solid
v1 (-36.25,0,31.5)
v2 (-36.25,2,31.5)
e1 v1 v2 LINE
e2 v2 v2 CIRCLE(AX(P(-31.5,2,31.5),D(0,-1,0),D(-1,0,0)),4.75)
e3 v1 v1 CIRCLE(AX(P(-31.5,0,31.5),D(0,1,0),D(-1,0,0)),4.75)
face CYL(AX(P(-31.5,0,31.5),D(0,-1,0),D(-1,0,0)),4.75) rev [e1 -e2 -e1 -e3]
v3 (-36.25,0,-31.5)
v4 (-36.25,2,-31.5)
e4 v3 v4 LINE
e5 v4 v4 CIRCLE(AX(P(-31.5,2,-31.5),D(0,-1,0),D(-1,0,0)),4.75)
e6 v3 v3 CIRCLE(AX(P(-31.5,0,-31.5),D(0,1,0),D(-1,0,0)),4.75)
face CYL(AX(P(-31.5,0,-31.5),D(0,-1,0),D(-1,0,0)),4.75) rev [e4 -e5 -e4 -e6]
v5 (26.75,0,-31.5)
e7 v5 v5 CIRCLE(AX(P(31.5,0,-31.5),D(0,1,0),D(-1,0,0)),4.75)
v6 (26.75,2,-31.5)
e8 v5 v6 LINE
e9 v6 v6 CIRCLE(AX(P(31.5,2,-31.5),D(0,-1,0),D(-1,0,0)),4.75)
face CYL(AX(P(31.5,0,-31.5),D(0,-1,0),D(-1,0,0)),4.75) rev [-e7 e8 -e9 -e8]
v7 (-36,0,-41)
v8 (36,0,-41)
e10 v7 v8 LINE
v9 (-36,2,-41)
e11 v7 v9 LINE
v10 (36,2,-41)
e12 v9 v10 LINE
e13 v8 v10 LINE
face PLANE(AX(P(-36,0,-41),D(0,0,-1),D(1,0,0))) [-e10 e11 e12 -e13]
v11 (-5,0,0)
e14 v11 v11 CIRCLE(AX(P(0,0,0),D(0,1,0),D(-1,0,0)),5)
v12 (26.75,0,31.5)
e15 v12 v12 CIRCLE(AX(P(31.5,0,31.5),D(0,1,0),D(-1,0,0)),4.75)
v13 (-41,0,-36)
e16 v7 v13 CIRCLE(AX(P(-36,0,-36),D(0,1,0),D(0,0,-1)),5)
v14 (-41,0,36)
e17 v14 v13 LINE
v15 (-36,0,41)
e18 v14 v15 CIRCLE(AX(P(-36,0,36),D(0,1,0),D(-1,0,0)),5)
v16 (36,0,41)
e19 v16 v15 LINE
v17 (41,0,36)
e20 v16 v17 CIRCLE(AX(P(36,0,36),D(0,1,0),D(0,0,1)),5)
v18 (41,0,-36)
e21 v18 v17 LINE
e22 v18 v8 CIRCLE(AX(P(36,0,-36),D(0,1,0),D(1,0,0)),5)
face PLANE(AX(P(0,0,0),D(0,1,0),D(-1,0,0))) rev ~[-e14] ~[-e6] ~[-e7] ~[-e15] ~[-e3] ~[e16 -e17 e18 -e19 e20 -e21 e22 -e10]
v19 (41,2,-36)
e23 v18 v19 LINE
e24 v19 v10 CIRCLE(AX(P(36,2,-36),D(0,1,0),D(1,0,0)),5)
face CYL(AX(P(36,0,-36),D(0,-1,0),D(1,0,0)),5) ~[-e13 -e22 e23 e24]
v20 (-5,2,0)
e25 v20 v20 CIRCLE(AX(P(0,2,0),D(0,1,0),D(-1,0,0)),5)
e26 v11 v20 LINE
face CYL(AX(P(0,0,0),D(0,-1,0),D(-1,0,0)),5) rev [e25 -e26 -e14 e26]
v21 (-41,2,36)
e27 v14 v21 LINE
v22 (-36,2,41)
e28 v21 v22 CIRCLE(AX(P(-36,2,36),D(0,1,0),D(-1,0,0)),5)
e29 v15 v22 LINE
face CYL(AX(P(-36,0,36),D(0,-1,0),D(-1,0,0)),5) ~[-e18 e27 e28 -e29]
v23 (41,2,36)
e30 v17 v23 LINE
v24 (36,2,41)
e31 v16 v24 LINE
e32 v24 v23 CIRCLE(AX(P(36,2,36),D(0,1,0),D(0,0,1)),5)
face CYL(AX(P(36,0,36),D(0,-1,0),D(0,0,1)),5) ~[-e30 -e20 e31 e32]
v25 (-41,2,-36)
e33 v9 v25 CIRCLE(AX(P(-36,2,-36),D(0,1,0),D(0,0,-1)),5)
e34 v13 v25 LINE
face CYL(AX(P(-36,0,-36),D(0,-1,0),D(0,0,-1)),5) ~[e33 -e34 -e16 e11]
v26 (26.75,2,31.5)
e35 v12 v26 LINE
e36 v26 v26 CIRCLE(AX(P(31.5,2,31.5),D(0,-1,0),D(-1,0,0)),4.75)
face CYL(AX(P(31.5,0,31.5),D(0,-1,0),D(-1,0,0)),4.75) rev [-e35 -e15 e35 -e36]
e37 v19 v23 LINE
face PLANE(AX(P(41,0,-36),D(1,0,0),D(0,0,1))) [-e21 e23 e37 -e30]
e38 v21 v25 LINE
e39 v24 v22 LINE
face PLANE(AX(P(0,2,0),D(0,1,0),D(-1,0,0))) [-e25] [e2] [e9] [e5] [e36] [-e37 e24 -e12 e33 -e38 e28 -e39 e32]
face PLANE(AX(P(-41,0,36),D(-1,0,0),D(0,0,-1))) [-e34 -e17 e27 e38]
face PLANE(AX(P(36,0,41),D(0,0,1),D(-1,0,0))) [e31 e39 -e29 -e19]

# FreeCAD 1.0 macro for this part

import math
import FreeCAD as App
import Part
import Sketcher
from FreeCAD import Vector

doc = App.newDocument("Part")
body = doc.addObject("PartDesign::Body", "Body")

sketch1 = body.newObject("Sketcher::SketchObject", "Sketch")
sketch1.AttachmentSupport = (doc.getObject("XZ_Plane"), [""])
sketch1.MapMode = "FlatFace"
sketch1.addGeometry([
    Part.LineSegment(Vector(-36, 41, 0), Vector(36, 41, 0)),
    Part.ArcOfCircle(Part.Circle(Vector(36, 36, 0), Vector(0, 0, 1), 5), math.radians(0), math.radians(90)),
    Part.LineSegment(Vector(41, 36, 0), Vector(41, -36, 0)),
    Part.ArcOfCircle(Part.Circle(Vector(36, -36, 0), Vector(0, 0, 1), 5), math.radians(-90), math.radians(0)),
    Part.LineSegment(Vector(36, -41, 0), Vector(-36, -41, 0)),
    Part.ArcOfCircle(Part.Circle(Vector(-36, -36, 0), Vector(0, 0, 1), 5), math.radians(180), math.radians(270)),
    Part.LineSegment(Vector(-41, -36, 0), Vector(-41, 36, 0)),
    Part.ArcOfCircle(Part.Circle(Vector(-36, 36, 0), Vector(0, 0, 1), 5), math.radians(90), math.radians(180)),
    Part.Circle(Vector(31.5, 31.5, 0), Vector(0, 0, 1), 4.8),
    Part.Circle(Vector(31.5, -31.5, 0), Vector(0, 0, 1), 4.8),
    Part.Circle(Vector(-31.5, -31.5, 0), Vector(0, 0, 1), 4.8),
    Part.Circle(Vector(-31.5, 31.5, 0), Vector(0, 0, 1), 4.8),
    Part.Circle(Vector(0, 0, 0), Vector(0, 0, 1), 5),
], False)
sketch1.addConstraint([
    Sketcher.Constraint("Tangent", 0, 2, 1, 2),
    Sketcher.Constraint("Tangent", 1, 1, 2, 1),
    Sketcher.Constraint("Tangent", 2, 2, 3, 2),
    Sketcher.Constraint("Tangent", 3, 1, 4, 1),
    Sketcher.Constraint("Tangent", 4, 2, 5, 2),
    Sketcher.Constraint("Tangent", 5, 1, 6, 1),
    Sketcher.Constraint("Tangent", 6, 2, 7, 2),
    Sketcher.Constraint("Tangent", 7, 1, 0, 1),
    Sketcher.Constraint("Horizontal", 0),
    Sketcher.Constraint("Vertical", 2),
    Sketcher.Constraint("Horizontal", 4),
    Sketcher.Constraint("Vertical", 6),
    Sketcher.Constraint("Coincident", 12, 3, -1, 1),
    Sketcher.Constraint("Equal", 1, 3),
    Sketcher.Constraint("Equal", 3, 5),
    Sketcher.Constraint("Equal", 5, 7),
    Sketcher.Constraint("Equal", 8, 9),
    Sketcher.Constraint("Equal", 9, 10),
    Sketcher.Constraint("Equal", 10, 11),
    Sketcher.Constraint("Equal", 7, 12),
    Sketcher.Constraint("Symmetric", 1, 3, 5, 3, -1, 1),
    Sketcher.Constraint("Symmetric", 8, 3, 10, 3, -1, 1),
    Sketcher.Constraint("Symmetric", 9, 3, 11, 3, -1, 1),
    Sketcher.Constraint("Symmetric", 9, 3, 10, 3, -2),
    Sketcher.Constraint("Equal", 4, 2),
    Sketcher.Constraint("Diameter", 12, 10.0),
    Sketcher.Constraint("Diameter", 8, 9.5),
    Sketcher.Constraint("DistanceY", 9, 3, 8, 3, 63.0),
    Sketcher.Constraint("DistanceX", 10, 3, 9, 3, 63.0),
    Sketcher.Constraint("DistanceY", 8, 3, 0, 2, 9.5),
])
pad1 = body.newObject("PartDesign::Pad", "Pad")
pad1.Profile = sketch1
pad1.Length = 2
pad1.Reversed = True

doc.recompute()
